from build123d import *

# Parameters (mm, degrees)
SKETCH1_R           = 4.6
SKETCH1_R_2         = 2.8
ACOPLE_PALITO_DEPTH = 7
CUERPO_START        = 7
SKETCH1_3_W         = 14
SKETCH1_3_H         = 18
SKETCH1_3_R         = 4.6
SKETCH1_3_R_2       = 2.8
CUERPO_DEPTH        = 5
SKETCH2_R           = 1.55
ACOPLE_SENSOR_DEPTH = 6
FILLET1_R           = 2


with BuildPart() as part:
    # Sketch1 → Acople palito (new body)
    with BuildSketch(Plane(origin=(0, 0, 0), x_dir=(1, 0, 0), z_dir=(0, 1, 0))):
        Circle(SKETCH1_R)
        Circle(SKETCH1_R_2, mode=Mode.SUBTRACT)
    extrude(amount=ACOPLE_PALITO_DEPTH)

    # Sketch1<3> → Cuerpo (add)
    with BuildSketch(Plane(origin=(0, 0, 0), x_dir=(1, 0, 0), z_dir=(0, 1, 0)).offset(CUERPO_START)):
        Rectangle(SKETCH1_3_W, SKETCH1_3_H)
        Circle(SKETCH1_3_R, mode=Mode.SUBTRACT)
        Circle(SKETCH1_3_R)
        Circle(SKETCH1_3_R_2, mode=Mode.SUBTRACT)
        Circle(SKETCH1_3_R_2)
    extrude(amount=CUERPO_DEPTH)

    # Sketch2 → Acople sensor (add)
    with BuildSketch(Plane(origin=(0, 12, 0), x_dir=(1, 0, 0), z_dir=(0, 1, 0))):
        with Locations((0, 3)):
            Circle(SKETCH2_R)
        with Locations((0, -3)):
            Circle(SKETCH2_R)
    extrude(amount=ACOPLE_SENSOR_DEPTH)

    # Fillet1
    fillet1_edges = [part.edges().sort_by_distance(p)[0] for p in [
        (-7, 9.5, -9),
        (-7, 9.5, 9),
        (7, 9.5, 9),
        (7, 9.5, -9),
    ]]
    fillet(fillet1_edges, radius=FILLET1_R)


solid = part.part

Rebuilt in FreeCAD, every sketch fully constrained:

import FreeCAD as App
import Part
import Sketcher

V = App.Vector
Q = App.Units.Quantity


def edges_at(feature, points):
    """Names of the edges that pass closest to the given points."""
    edges = feature.Shape.Edges
    near = lambda p: min(range(len(edges)), key=lambda i: edges[i].distToShape(Part.Vertex(*p))[0])
    return sorted({f"Edge{near(p) + 1}" for p in points})

doc = App.newDocument("Part")
body = doc.addObject("PartDesign::Body", "Body")

sketch1 = doc.addObject("Sketcher::SketchObject", "Sketch")
body.addObject(sketch1)
sketch1.AttachmentSupport = (doc.XZ_Plane, [""])
sketch1.MapMode = "FlatFace"
sketch1.addGeometry([
    Part.Circle(V(0, 0, 0), V(0, 0, 1), 4.6),
    Part.Circle(V(0, 0, 0), V(0, 0, 1), 2.8),
], False)
sketch1.addConstraint([
    Sketcher.Constraint("Coincident", 0, 3, -1, 1),
    Sketcher.Constraint("Coincident", 1, 3, -1, 1),
    Sketcher.Constraint("Diameter", 0, Q("9.2 mm")),
    Sketcher.Constraint("Diameter", 1, Q("5.6 mm")),
])
pad1 = doc.addObject("PartDesign::Pad", "Pad")
body.addObject(pad1)
pad1.Profile = sketch1
pad1.Length = 7
pad1.Reversed = True

sketch2 = doc.addObject("Sketcher::SketchObject", "Sketch001")
body.addObject(sketch2)
sketch2.AttachmentSupport = (doc.XZ_Plane, [""])
sketch2.MapMode = "FlatFace"
sketch2.AttachmentOffset = App.Placement(V(0, 0, -7), App.Rotation())
sketch2.addGeometry([
    Part.LineSegment(V(-7, -9, 0), V(-7, 9, 0)),
    Part.LineSegment(V(-7, 9, 0), V(7, 9, 0)),
    Part.LineSegment(V(7, 9, 0), V(7, -9, 0)),
    Part.LineSegment(V(7, -9, 0), V(-7, -9, 0)),
], False)
sketch2.addConstraint([
    Sketcher.Constraint("Coincident", 0, 2, 1, 1),
    Sketcher.Constraint("Coincident", 1, 2, 2, 1),
    Sketcher.Constraint("Coincident", 2, 2, 3, 1),
    Sketcher.Constraint("Coincident", 3, 2, 0, 1),
    Sketcher.Constraint("Vertical", 0),
    Sketcher.Constraint("Horizontal", 1),
    Sketcher.Constraint("Vertical", 2),
    Sketcher.Constraint("Horizontal", 3),
    Sketcher.Constraint("Symmetric", 0, 2, 2, 2, -1, 1),
    Sketcher.Constraint("DistanceX", 1, 1, 1, 2, Q("14 mm")),
    Sketcher.Constraint("DistanceY", 0, 1, 0, 2, Q("18 mm")),
])
pad2 = doc.addObject("PartDesign::Pad", "Pad001")
body.addObject(pad2)
pad2.Profile = sketch2
pad2.Length = 5
pad2.Reversed = True

sketch3 = doc.addObject("Sketcher::SketchObject", "Sketch002")
body.addObject(sketch3)
sketch3.AttachmentSupport = (doc.XZ_Plane, [""])
sketch3.MapMode = "FlatFace"
sketch3.AttachmentOffset = App.Placement(V(0, 0, -12), App.Rotation())
sketch3.addGeometry([
    Part.Circle(V(0, -3, 0), V(0, 0, 1), 1.55),
    Part.Circle(V(0, 3, 0), V(0, 0, 1), 1.55),
], False)
sketch3.addConstraint([
    Sketcher.Constraint("Equal", 0, 1),
    Sketcher.Constraint("Symmetric", 0, 3, 1, 3, -1, 1),
    Sketcher.Constraint("PointOnObject", 0, 3, -2),
    Sketcher.Constraint("Diameter", 0, Q("3.1 mm")),
    Sketcher.Constraint("DistanceY", 0, 3, -1, 1, Q("3 mm")),
])
pad3 = doc.addObject("PartDesign::Pad", "Pad002")
body.addObject(pad3)
pad3.Profile = sketch3
pad3.Length = 6
pad3.Reversed = True
doc.recompute()

fillet = doc.addObject("PartDesign::Fillet", "Fillet")
body.addObject(fillet)
fillet.Base = (pad3, edges_at(pad3, [
    (-7, 9.5, -9),
    (-7, 9.5, 9),
    (7, 9.5, 9),
    (7, 9.5, -9),
]))
fillet.Radius = 2

doc.recompute()
